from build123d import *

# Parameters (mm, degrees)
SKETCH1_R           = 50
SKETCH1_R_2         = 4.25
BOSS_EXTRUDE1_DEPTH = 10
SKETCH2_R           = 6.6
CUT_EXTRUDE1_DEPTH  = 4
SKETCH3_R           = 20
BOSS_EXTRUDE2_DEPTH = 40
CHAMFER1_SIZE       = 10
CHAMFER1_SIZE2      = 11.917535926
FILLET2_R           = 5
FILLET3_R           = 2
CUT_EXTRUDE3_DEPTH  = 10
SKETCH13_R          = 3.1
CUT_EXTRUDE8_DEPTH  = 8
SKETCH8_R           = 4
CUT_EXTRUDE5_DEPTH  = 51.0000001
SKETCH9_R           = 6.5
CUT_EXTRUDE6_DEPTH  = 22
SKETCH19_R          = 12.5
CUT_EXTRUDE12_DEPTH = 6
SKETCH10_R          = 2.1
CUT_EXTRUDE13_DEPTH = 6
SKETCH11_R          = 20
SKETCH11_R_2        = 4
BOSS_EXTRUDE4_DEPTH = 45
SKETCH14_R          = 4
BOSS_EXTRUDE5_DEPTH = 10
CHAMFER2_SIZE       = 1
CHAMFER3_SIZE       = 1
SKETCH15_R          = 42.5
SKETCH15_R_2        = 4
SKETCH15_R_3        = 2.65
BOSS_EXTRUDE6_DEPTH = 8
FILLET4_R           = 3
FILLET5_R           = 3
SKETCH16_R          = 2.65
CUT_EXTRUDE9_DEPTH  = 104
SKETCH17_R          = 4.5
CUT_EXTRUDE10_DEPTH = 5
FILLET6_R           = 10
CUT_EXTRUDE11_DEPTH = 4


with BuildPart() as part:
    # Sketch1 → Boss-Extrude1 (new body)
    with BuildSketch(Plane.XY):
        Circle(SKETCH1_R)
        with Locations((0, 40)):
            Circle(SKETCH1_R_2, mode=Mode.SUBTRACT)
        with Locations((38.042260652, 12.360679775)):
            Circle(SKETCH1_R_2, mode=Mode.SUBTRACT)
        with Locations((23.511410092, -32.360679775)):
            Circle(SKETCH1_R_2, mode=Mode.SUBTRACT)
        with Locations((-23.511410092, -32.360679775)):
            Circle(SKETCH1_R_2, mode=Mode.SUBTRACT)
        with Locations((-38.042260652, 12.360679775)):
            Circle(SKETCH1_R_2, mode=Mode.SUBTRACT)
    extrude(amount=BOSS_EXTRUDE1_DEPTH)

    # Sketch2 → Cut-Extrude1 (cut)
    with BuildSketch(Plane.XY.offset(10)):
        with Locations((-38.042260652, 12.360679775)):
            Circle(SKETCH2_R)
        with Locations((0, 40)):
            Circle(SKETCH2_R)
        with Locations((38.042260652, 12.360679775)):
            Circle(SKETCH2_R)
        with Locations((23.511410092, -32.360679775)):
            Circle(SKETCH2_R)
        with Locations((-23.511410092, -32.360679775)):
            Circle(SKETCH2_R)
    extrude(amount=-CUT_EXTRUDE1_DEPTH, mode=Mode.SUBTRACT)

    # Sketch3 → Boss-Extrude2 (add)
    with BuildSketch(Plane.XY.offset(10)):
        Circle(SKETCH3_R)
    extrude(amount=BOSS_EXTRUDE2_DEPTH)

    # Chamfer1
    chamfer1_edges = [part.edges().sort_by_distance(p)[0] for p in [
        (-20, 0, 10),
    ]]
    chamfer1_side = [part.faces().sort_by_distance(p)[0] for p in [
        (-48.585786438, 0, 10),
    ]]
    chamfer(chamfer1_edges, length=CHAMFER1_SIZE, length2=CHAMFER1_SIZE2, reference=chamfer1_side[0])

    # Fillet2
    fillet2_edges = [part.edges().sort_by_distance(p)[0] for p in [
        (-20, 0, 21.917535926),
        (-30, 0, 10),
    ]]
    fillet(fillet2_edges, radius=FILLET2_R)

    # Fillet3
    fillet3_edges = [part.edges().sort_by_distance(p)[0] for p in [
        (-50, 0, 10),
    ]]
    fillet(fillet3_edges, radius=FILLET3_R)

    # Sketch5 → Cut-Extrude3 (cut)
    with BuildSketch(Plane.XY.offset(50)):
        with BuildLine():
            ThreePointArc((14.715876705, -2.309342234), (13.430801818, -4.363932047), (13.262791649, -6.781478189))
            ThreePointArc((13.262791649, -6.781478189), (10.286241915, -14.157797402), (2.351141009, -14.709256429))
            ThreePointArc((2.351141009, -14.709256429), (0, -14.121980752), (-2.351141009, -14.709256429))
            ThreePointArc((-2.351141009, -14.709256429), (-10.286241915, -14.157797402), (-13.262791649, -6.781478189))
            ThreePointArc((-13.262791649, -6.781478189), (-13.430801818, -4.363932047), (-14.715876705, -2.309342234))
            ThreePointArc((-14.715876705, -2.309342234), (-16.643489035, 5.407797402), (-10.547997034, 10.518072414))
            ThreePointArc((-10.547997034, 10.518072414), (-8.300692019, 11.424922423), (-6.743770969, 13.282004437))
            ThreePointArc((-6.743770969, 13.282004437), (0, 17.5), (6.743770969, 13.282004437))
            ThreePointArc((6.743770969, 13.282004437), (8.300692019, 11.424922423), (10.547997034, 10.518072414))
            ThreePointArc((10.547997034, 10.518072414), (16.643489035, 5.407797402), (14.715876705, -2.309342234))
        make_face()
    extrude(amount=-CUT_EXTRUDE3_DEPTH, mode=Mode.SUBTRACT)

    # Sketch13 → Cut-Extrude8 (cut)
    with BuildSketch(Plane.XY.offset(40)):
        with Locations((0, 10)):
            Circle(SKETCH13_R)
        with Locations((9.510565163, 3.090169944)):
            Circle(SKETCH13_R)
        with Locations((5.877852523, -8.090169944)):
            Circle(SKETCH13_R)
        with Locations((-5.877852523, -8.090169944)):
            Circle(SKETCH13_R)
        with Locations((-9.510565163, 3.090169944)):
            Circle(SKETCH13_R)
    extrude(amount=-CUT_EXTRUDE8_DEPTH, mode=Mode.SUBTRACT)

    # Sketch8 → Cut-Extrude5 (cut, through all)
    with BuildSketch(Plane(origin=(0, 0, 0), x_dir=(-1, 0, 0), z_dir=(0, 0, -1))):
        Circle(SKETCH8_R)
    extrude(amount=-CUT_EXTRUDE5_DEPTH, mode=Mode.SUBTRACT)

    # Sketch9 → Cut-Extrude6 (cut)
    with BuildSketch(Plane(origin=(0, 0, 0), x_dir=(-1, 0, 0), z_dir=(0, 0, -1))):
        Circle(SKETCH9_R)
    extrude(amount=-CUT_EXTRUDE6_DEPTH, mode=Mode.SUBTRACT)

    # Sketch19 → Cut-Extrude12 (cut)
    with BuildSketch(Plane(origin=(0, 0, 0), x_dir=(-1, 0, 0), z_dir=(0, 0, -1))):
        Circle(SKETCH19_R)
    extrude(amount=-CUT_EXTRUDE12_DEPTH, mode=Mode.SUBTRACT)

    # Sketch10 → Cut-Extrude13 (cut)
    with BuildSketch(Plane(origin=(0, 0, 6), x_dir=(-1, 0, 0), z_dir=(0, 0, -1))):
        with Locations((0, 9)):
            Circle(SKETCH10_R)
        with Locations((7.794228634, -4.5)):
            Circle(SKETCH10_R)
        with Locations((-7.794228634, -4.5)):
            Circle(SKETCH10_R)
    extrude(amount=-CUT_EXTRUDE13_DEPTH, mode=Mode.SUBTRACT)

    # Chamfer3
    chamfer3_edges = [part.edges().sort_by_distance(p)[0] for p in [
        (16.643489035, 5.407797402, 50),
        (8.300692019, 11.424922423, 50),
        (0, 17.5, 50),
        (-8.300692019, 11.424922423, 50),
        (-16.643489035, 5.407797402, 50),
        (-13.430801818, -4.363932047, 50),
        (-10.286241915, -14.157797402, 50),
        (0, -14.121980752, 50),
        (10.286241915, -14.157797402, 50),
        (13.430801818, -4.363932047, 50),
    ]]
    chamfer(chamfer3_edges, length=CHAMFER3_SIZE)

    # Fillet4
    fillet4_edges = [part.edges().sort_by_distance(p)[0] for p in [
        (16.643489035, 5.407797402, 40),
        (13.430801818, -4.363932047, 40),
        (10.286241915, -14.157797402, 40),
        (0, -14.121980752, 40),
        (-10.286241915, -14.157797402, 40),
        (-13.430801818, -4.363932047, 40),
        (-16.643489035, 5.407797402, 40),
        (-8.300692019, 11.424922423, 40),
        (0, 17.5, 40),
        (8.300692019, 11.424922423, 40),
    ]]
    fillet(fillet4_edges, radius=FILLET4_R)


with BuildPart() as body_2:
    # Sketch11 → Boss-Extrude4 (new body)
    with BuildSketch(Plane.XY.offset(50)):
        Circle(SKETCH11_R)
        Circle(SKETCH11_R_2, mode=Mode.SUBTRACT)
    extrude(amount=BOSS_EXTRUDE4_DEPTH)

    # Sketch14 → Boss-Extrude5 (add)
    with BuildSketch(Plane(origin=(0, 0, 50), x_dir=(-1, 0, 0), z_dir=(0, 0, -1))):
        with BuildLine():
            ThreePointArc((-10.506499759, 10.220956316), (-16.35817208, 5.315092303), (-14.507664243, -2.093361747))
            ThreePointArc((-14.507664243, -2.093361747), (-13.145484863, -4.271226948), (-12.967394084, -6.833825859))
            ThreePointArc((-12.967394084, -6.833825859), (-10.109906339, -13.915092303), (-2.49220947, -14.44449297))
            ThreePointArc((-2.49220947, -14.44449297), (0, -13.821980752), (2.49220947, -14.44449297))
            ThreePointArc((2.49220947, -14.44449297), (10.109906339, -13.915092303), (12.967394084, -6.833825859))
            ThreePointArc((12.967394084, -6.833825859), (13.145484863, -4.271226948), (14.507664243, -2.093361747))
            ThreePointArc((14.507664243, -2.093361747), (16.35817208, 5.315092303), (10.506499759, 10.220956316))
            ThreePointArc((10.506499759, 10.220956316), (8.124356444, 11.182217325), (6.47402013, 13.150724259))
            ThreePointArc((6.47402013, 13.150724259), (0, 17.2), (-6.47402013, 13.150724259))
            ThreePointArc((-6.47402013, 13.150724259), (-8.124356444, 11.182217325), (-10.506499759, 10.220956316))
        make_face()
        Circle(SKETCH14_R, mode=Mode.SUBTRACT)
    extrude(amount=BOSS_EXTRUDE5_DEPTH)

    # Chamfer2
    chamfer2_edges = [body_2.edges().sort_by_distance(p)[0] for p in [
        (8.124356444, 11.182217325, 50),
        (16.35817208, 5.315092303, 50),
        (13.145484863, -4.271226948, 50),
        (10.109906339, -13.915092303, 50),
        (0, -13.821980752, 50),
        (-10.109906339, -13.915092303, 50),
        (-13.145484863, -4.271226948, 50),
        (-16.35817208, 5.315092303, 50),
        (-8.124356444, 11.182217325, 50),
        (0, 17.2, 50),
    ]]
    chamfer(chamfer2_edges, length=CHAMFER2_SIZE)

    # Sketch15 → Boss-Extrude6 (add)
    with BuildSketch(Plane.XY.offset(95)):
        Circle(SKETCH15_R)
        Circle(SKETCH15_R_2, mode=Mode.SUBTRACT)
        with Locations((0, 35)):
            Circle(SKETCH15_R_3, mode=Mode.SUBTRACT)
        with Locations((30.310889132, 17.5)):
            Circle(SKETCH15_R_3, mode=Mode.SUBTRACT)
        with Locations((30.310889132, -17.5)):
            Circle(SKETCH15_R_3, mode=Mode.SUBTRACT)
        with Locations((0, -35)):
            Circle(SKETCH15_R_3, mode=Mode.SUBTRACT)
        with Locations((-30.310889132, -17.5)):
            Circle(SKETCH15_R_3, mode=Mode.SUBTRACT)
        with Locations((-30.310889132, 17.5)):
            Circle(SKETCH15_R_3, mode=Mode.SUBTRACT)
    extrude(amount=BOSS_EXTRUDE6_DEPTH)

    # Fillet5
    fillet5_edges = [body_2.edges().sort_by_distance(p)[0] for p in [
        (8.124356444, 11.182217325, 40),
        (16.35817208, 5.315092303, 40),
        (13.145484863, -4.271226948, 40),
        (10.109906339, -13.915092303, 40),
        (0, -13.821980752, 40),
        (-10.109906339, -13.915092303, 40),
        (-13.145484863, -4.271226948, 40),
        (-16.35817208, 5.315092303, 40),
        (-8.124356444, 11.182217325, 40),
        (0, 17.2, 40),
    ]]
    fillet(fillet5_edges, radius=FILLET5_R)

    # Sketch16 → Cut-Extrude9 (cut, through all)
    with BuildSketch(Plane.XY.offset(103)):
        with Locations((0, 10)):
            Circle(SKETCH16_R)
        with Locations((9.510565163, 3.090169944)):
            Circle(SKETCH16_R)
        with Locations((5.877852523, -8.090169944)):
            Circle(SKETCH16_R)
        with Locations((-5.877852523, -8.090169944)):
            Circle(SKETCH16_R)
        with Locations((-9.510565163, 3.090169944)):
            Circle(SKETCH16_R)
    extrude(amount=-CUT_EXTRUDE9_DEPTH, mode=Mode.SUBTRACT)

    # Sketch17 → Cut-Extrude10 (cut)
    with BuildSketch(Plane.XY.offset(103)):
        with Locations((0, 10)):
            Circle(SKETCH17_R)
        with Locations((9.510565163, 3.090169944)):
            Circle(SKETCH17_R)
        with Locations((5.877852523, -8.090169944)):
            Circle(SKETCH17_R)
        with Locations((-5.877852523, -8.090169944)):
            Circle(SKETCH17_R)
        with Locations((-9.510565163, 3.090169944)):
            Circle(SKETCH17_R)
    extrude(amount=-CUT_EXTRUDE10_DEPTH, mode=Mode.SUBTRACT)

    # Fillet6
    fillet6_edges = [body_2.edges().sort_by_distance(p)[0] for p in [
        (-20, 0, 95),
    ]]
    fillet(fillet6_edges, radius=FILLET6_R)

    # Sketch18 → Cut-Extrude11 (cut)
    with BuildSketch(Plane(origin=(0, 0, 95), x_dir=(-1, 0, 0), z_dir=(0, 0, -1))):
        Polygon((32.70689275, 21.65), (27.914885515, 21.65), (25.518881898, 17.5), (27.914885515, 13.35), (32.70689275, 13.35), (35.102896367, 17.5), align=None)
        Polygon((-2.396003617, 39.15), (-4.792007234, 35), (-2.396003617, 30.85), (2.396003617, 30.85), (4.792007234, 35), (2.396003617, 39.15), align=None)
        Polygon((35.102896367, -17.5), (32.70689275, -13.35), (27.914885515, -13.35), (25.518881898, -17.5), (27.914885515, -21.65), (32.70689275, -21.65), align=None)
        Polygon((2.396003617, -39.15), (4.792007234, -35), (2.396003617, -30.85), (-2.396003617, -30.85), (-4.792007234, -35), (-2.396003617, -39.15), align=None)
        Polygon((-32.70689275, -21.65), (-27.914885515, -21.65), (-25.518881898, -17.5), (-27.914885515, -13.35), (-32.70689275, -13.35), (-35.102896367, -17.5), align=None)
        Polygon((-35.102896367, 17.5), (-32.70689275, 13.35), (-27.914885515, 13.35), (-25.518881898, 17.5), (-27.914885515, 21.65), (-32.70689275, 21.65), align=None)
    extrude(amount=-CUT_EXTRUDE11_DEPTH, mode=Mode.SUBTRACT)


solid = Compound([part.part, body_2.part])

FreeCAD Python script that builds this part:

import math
import FreeCAD as App
import Part
import Sketcher
from FreeCAD import Vector
Q = App.Units.Quantity


def edges_at(feature, points):
    """Names of the edges that pass closest to the given points."""
    edges = feature.Shape.Edges
    near = lambda p: min(range(len(edges)), key=lambda i: edges[i].distToShape(Part.Vertex(*p))[0])
    return sorted({f"Edge{near(p) + 1}" for p in points})


def add_polygon(sketch, points):
    """Adds a closed chain of lines whose ends are joined by coincident constraints."""
    first, n = sketch.GeometryCount, len(points)
    for a, b in zip(points, points[1:] + points[:1]):
        sketch.addGeometry(Part.LineSegment(App.Vector(*a, 0), App.Vector(*b, 0)), False)
    for i in range(n):
        sketch.addConstraint(Sketcher.Constraint("Coincident", first + i, 2, first + (i + 1) % n, 1))

doc = App.newDocument("Part")
params = doc.addObject("Spreadsheet::Sheet", "Params")
for row, (alias, value) in enumerate([
    ("sketch1_diameter", "100 mm"),
    ("sketch1_diameter2", "8.5 mm"),
    ("pad1_length", "10 mm"),
    ("sketch2_diameter", "13.2 mm"),
    ("pocket1_length", "4 mm"),
    ("sketch3_diameter", "40 mm"),
    ("pad2_length", "40 mm"),
    ("chamfer_size", "10 mm"),
    ("chamfer_size2", "11.917536 mm"),
    ("fillet_radius", "5 mm"),
    ("fillet2_radius", "2 mm"),
    ("sketch4_radius", "5 mm"),
    ("sketch4_radius2", "7.5 mm"),
    ("pocket2_length", "10 mm"),
    ("sketch5_diameter", "6.2 mm"),
    ("pocket3_length", "8 mm"),
    ("sketch6_diameter", "8 mm"),
    ("sketch7_diameter", "13 mm"),
    ("pocket5_length", "22 mm"),
    ("sketch8_diameter", "25 mm"),
    ("pocket6_length", "6 mm"),
    ("sketch9_diameter", "4.2 mm"),
    ("pocket7_length", "6 mm"),
    ("chamfer2_size", "1 mm"),
    ("fillet3_radius", "3 mm"),
    ("sketch10_diameter", "40 mm"),
    ("sketch10_diameter2", "8 mm"),
    ("pad3_length", "45 mm"),
    ("sketch11_diameter", "8 mm"),
    ("sketch11_radius", "7.2 mm"),
    ("sketch11_radius2", "5.3 mm"),
    ("pad4_length", "10 mm"),
    ("chamfer3_size", "1 mm"),
    ("sketch12_diameter", "85 mm"),
    ("sketch12_diameter2", "8 mm"),
    ("sketch12_diameter3", "5.3 mm"),
    ("pad5_length", "8 mm"),
    ("fillet4_radius", "3 mm"),
    ("sketch13_diameter", "5.3 mm"),
    ("sketch14_diameter", "9 mm"),
    ("pocket9_length", "5 mm"),
    ("fillet5_radius", "10 mm"),
    ("pocket10_length", "4 mm"),
], start=1):
    params.set(f"A{row}", alias)
    params.set(f"B{row}", "=" + value)
    params.setAlias(f"B{row}", alias)

body = doc.addObject("PartDesign::Body", "Body")

# Sketch on XY plane
sketch1 = body.newObject("Sketcher::SketchObject", "Sketch")
sketch1.AttachmentSupport = (doc.getObject("XY_Plane"), [""])
sketch1.MapMode = "FlatFace"
sketch1.addGeometry(Part.Circle(Vector(0, 0, 0), Vector(0, 0, 1), 50), False)
sketch1.addGeometry(Part.Circle(Vector(-23.5, -32.4, 0), Vector(0, 0, 1), 4.2), False)
sketch1.addGeometry(Part.Circle(Vector(23.5, -32.4, 0), Vector(0, 0, 1), 4.2), False)
sketch1.addGeometry(Part.Circle(Vector(-38, 12.4, 0), Vector(0, 0, 1), 4.2), False)
sketch1.addGeometry(Part.Circle(Vector(38, 12.4, 0), Vector(0, 0, 1), 4.2), False)
sketch1.addGeometry(Part.Circle(Vector(0, 40, 0), Vector(0, 0, 1), 4.2), False)
sketch1.addConstraint(Sketcher.Constraint("Coincident", 0, 3, -1, 1))
sketch1.addConstraint(Sketcher.Constraint("Equal", 1, 2))
sketch1.addConstraint(Sketcher.Constraint("Equal", 2, 3))
sketch1.addConstraint(Sketcher.Constraint("Equal", 3, 4))
sketch1.addConstraint(Sketcher.Constraint("Equal", 4, 5))
sketch1.addConstraint(Sketcher.Constraint("Symmetric", 1, 3, 2, 3, -2))
sketch1.addConstraint(Sketcher.Constraint("Symmetric", 3, 3, 4, 3, -2))
sketch1.addConstraint(Sketcher.Constraint("PointOnObject", 5, 3, -2))
sketch1.addConstraint(Sketcher.Constraint("Diameter", 0, 100.0))
sketch1.addConstraint(Sketcher.Constraint("Diameter", 1, 8.5))
sketch1.addConstraint(Sketcher.Constraint("DistanceY", -1, 1, 5, 3, 40.0))
sketch1.addConstraint(Sketcher.Constraint("DistanceX", 1, 3, -1, 1, 23.51141))
sketch1.addConstraint(Sketcher.Constraint("DistanceY", 1, 3, -1, 1, 32.36068))
sketch1.addConstraint(Sketcher.Constraint("DistanceX", 3, 3, -1, 1, 38.042261))
sketch1.addConstraint(Sketcher.Constraint("DistanceY", -1, 1, 3, 3, 12.36068))
sketch1.setExpression("Constraints[8]", "Params.sketch1_diameter")
sketch1.setExpression("Constraints[9]", "Params.sketch1_diameter2")
pad1 = body.newObject("PartDesign::Pad", "Pad")
pad1.Profile = sketch1
pad1.setExpression("Length", "Params.pad1_length")

# Sketch on XY plane
sketch2 = body.newObject("Sketcher::SketchObject", "Sketch001")
sketch2.AttachmentSupport = (doc.getObject("XY_Plane"), [""])
sketch2.MapMode = "FlatFace"
sketch2.AttachmentOffset = App.Placement(Vector(0, 0, 10), App.Rotation())
sketch2.addGeometry(Part.Circle(Vector(-38, 12, 0), Vector(0, 0, 1), 7), False)
sketch2.addGeometry(Part.Circle(Vector(0, 40, 0), Vector(0, 0, 1), 7), False)
sketch2.addGeometry(Part.Circle(Vector(38, 12, 0), Vector(0, 0, 1), 7), False)
sketch2.addGeometry(Part.Circle(Vector(24, -32, 0), Vector(0, 0, 1), 7), False)
sketch2.addGeometry(Part.Circle(Vector(-24, -32, 0), Vector(0, 0, 1), 7), False)
sketch2.addConstraint(Sketcher.Constraint("Equal", 0, 1))
sketch2.addConstraint(Sketcher.Constraint("Equal", 1, 2))
sketch2.addConstraint(Sketcher.Constraint("Equal", 2, 3))
sketch2.addConstraint(Sketcher.Constraint("Equal", 3, 4))
sketch2.addConstraint(Sketcher.Constraint("Symmetric", 0, 3, 2, 3, -2))
sketch2.addConstraint(Sketcher.Constraint("Symmetric", 3, 3, 4, 3, -2))
sketch2.addConstraint(Sketcher.Constraint("PointOnObject", 1, 3, -2))
sketch2.addConstraint(Sketcher.Constraint("Diameter", 0, 13.2))
sketch2.addConstraint(Sketcher.Constraint("DistanceY", -1, 1, 1, 3, 40.0))
sketch2.addConstraint(Sketcher.Constraint("DistanceX", 0, 3, -1, 1, 38.042261))
sketch2.addConstraint(Sketcher.Constraint("DistanceY", -1, 1, 0, 3, 12.36068))
sketch2.addConstraint(Sketcher.Constraint("DistanceX", -1, 1, 3, 3, 23.51141))
sketch2.addConstraint(Sketcher.Constraint("DistanceY", 3, 3, -1, 1, 32.36068))
sketch2.setExpression("Constraints[7]", "Params.sketch2_diameter")
pocket1 = body.newObject("PartDesign::Pocket", "Pocket")
pocket1.Profile = sketch2
pocket1.setExpression("Length", "Params.pocket1_length")

# Sketch on XY plane
sketch3 = body.newObject("Sketcher::SketchObject", "Sketch002")
sketch3.AttachmentSupport = (doc.getObject("XY_Plane"), [""])
sketch3.MapMode = "FlatFace"
sketch3.AttachmentOffset = App.Placement(Vector(0, 0, 10), App.Rotation())
sketch3.addGeometry(Part.Circle(Vector(0, 0, 0), Vector(0, 0, 1), 20), False)
sketch3.addConstraint(Sketcher.Constraint("Coincident", 0, 3, -1, 1))
sketch3.addConstraint(Sketcher.Constraint("Diameter", 0, 40.0))
sketch3.setExpression("Constraints[1]", "Params.sketch3_diameter")
pad2 = body.newObject("PartDesign::Pad", "Pad001")
pad2.Profile = sketch3
pad2.setExpression("Length", "Params.pad2_length")
doc.recompute()

chamfer = body.newObject("PartDesign::Chamfer", "Chamfer")
chamfer.Base = (pad2, edges_at(pad2, [(-20, 0, 10)]))
chamfer.ChamferType = "Two distances"
chamfer.setExpression("Size", "Params.chamfer_size")
chamfer.setExpression("Size2", "Params.chamfer_size2")
doc.recompute()

fillet = body.newObject("PartDesign::Fillet", "Fillet")
fillet.Base = (chamfer, edges_at(chamfer, [(-20, 0, 21.918), (-30, 0, 10)]))
fillet.setExpression("Radius", "Params.fillet_radius")
doc.recompute()

fillet2 = body.newObject("PartDesign::Fillet", "Fillet001")
fillet2.Base = (fillet, edges_at(fillet, [(-50, 0, 10)]))
fillet2.setExpression("Radius", "Params.fillet2_radius")

# Sketch on XY plane
sketch4 = body.newObject("Sketcher::SketchObject", "Sketch003")
sketch4.AttachmentSupport = (doc.getObject("XY_Plane"), [""])
sketch4.MapMode = "FlatFace"
sketch4.AttachmentOffset = App.Placement(Vector(0, 0, 50), App.Rotation())
sketch4.addGeometry(Part.ArcOfCircle(Part.Circle(Vector(18.2, -5.9, 0), Vector(0, 0, 1), 5), math.radians(134), math.radians(190)), False)
sketch4.addGeometry(Part.ArcOfCircle(Part.Circle(Vector(9.5, 3.1, 0), Vector(0, 0, 1), 7.5), math.radians(-46), math.radians(82)), False)
sketch4.addGeometry(Part.ArcOfCircle(Part.Circle(Vector(11.2, 15.5, 0), Vector(0, 0, 1), 5), math.radians(-154), math.radians(-98)), False)
sketch4.addGeometry(Part.ArcOfCircle(Part.Circle(Vector(0, 10, 0), Vector(0, 0, 1), 7.5), math.radians(26), math.radians(154)), False)
sketch4.addGeometry(Part.ArcOfCircle(Part.Circle(Vector(-11.2, 15.5, 0), Vector(0, 0, 1), 5), math.radians(-82), math.radians(-26)), False)
sketch4.addGeometry(Part.ArcOfCircle(Part.Circle(Vector(-9.5, 3.1, 0), Vector(0, 0, 1), 7.5), math.radians(98), math.radians(226)), False)
sketch4.addGeometry(Part.ArcOfCircle(Part.Circle(Vector(-18.2, -5.9, 0), Vector(0, 0, 1), 5), math.radians(-10), math.radians(46)), False)
sketch4.addGeometry(Part.ArcOfCircle(Part.Circle(Vector(-5.9, -8.1, 0), Vector(0, 0, 1), 7.5), math.radians(170), math.radians(298)), False)
sketch4.addGeometry(Part.ArcOfCircle(Part.Circle(Vector(0, -19.1, 0), Vector(0, 0, 1), 5), math.radians(62), math.radians(118)), False)
sketch4.addGeometry(Part.ArcOfCircle(Part.Circle(Vector(5.9, -8.1, 0), Vector(0, 0, 1), 7.5), math.radians(-118), math.radians(10)), False)
sketch4.addConstraint(Sketcher.Constraint("Tangent", 0, 1, 1, 1))
sketch4.addConstraint(Sketcher.Constraint("Tangent", 1, 2, 2, 2))
sketch4.addConstraint(Sketcher.Constraint("Tangent", 2, 1, 3, 1))
sketch4.addConstraint(Sketcher.Constraint("Tangent", 3, 2, 4, 2))
sketch4.addConstraint(Sketcher.Constraint("Tangent", 4, 1, 5, 1))
sketch4.addConstraint(Sketcher.Constraint("Tangent", 5, 2, 6, 2))
sketch4.addConstraint(Sketcher.Constraint("Tangent", 6, 1, 7, 1))
sketch4.addConstraint(Sketcher.Constraint("Tangent", 7, 2, 8, 2))
sketch4.addConstraint(Sketcher.Constraint("Tangent", 8, 1, 9, 1))
sketch4.addConstraint(Sketcher.Constraint("Tangent", 9, 2, 0, 2))
sketch4.addConstraint(Sketcher.Constraint("Equal", 0, 2))
sketch4.addConstraint(Sketcher.Constraint("Equal", 1, 3))
sketch4.addConstraint(Sketcher.Constraint("Equal", 2, 4))
sketch4.addConstraint(Sketcher.Constraint("Equal", 3, 5))
sketch4.addConstraint(Sketcher.Constraint("Equal", 4, 6))
sketch4.addConstraint(Sketcher.Constraint("Equal", 5, 7))
sketch4.addConstraint(Sketcher.Constraint("Equal", 6, 8))
sketch4.addConstraint(Sketcher.Constraint("Equal", 7, 9))
sketch4.addConstraint(Sketcher.Constraint("Symmetric", 2, 3, 4, 3, -2))
sketch4.addConstraint(Sketcher.Constraint("Symmetric", 0, 3, 6, 3, -2))
sketch4.addConstraint(Sketcher.Constraint("PointOnObject", 8, 3, -2))
sketch4.addConstraint(Sketcher.Constraint("Radius", 0, 5.0))
sketch4.addConstraint(Sketcher.Constraint("Radius", 1, 7.5))
sketch4.addConstraint(Sketcher.Constraint("DistanceY", -1, 1, 3, 3, 10.0))
sketch4.addConstraint(Sketcher.Constraint("DistanceY", -1, 1, 1, 3, 3.09017))
sketch4.addConstraint(Sketcher.Constraint("DistanceX", -1, 1, 2, 3, 11.239618))
sketch4.addConstraint(Sketcher.Constraint("DistanceY", 7, 3, -1, 1, 8.09017))
sketch4.addConstraint(Sketcher.Constraint("DistanceY", 8, 3, -1, 1, 19.121981))
sketch4.setExpression("Constraints[21]", "Params.sketch4_radius")
sketch4.setExpression("Constraints[22]", "Params.sketch4_radius2")
pocket2 = body.newObject("PartDesign::Pocket", "Pocket001")
pocket2.Profile = sketch4
pocket2.setExpression("Length", "Params.pocket2_length")

# Sketch on XY plane
sketch5 = body.newObject("Sketcher::SketchObject", "Sketch004")
sketch5.AttachmentSupport = (doc.getObject("XY_Plane"), [""])
sketch5.MapMode = "FlatFace"
sketch5.AttachmentOffset = App.Placement(Vector(0, 0, 40), App.Rotation())
sketch5.addGeometry(Part.Circle(Vector(0, 10, 0), Vector(0, 0, 1), 3.1), False)
sketch5.addGeometry(Part.Circle(Vector(9.5, 3.1, 0), Vector(0, 0, 1), 3.1), False)
sketch5.addGeometry(Part.Circle(Vector(5.9, -8.1, 0), Vector(0, 0, 1), 3.1), False)
sketch5.addGeometry(Part.Circle(Vector(-5.9, -8.1, 0), Vector(0, 0, 1), 3.1), False)
sketch5.addGeometry(Part.Circle(Vector(-9.5, 3.1, 0), Vector(0, 0, 1), 3.1), False)
sketch5.addConstraint(Sketcher.Constraint("Equal", 0, 1))
sketch5.addConstraint(Sketcher.Constraint("Equal", 1, 2))
sketch5.addConstraint(Sketcher.Constraint("Equal", 2, 3))
sketch5.addConstraint(Sketcher.Constraint("Equal", 3, 4))
sketch5.addConstraint(Sketcher.Constraint("Symmetric", 2, 3, 3, 3, -2))
sketch5.addConstraint(Sketcher.Constraint("Symmetric", 1, 3, 4, 3, -2))
sketch5.addConstraint(Sketcher.Constraint("PointOnObject", 0, 3, -2))
sketch5.addConstraint(Sketcher.Constraint("Diameter", 0, 6.2))
sketch5.addConstraint(Sketcher.Constraint("DistanceY", -1, 1, 0, 3, 10.0))
sketch5.addConstraint(Sketcher.Constraint("DistanceY", -1, 1, 1, 3, 3.09017))
sketch5.addConstraint(Sketcher.Constraint("DistanceY", 2, 3, -1, 1, 8.09017))
sketch5.addConstraint(Sketcher.Constraint("DistanceX", 4, 3, 1, 3, 19.02113))
sketch5.addConstraint(Sketcher.Constraint("DistanceX", -1, 1, 2, 3, 5.877853))
sketch5.setExpression("Constraints[7]", "Params.sketch5_diameter")
pocket3 = body.newObject("PartDesign::Pocket", "Pocket002")
pocket3.Profile = sketch5
pocket3.setExpression("Length", "Params.pocket3_length")

# Sketch on XY plane
sketch6 = body.newObject("Sketcher::SketchObject", "Sketch005")
sketch6.AttachmentSupport = (doc.getObject("XY_Plane"), [""])
sketch6.MapMode = "FlatFace"
sketch6.addGeometry(Part.Circle(Vector(0, 0, 0), Vector(0, 0, 1), 4), False)
sketch6.addConstraint(Sketcher.Constraint("Coincident", 0, 3, -1, 1))
sketch6.addConstraint(Sketcher.Constraint("Diameter", 0, 8.0))
sketch6.setExpression("Constraints[1]", "Params.sketch6_diameter")
pocket4 = body.newObject("PartDesign::Pocket", "Pocket003")
pocket4.Profile = sketch6
pocket4.Type = "ThroughAll"
pocket4.Reversed = True

# Sketch on XY plane
sketch7 = body.newObject("Sketcher::SketchObject", "Sketch006")
sketch7.AttachmentSupport = (doc.getObject("XY_Plane"), [""])
sketch7.MapMode = "FlatFace"
sketch7.addGeometry(Part.Circle(Vector(0, 0, 0), Vector(0, 0, 1), 6), False)
sketch7.addConstraint(Sketcher.Constraint("Coincident", 0, 3, -1, 1))
sketch7.addConstraint(Sketcher.Constraint("Diameter", 0, 13.0))
sketch7.setExpression("Constraints[1]", "Params.sketch7_diameter")
pocket5 = body.newObject("PartDesign::Pocket", "Pocket004")
pocket5.Profile = sketch7
pocket5.setExpression("Length", "Params.pocket5_length")
pocket5.Reversed = True

# Sketch on XY plane
sketch8 = body.newObject("Sketcher::SketchObject", "Sketch007")
sketch8.AttachmentSupport = (doc.getObject("XY_Plane"), [""])
sketch8.MapMode = "FlatFace"
sketch8.addGeometry(Part.Circle(Vector(0, 0, 0), Vector(0, 0, 1), 12), False)
sketch8.addConstraint(Sketcher.Constraint("Coincident", 0, 3, -1, 1))
sketch8.addConstraint(Sketcher.Constraint("Diameter", 0, 25.0))
sketch8.setExpression("Constraints[1]", "Params.sketch8_diameter")
pocket6 = body.newObject("PartDesign::Pocket", "Pocket005")
pocket6.Profile = sketch8
pocket6.setExpression("Length", "Params.pocket6_length")
pocket6.Reversed = True

# Sketch on XY plane
sketch9 = body.newObject("Sketcher::SketchObject", "Sketch008")
sketch9.AttachmentSupport = (doc.getObject("XY_Plane"), [""])
sketch9.MapMode = "FlatFace"
sketch9.AttachmentOffset = App.Placement(Vector(0, 0, 6), App.Rotation())
sketch9.addGeometry(Part.Circle(Vector(0, 9, 0), Vector(0, 0, 1), 2.1), False)
sketch9.addGeometry(Part.Circle(Vector(-7.8, -4.5, 0), Vector(0, 0, 1), 2.1), False)
sketch9.addGeometry(Part.Circle(Vector(7.8, -4.5, 0), Vector(0, 0, 1), 2.1), False)
sketch9.addConstraint(Sketcher.Constraint("Equal", 0, 1))
sketch9.addConstraint(Sketcher.Constraint("Equal", 1, 2))
sketch9.addConstraint(Sketcher.Constraint("Symmetric", 1, 3, 2, 3, -2))
sketch9.addConstraint(Sketcher.Constraint("PointOnObject", 0, 3, -2))
sketch9.addConstraint(Sketcher.Constraint("Diameter", 0, 4.2))
sketch9.addConstraint(Sketcher.Constraint("DistanceY", -1, 1, 0, 3, 9.0))
sketch9.addConstraint(Sketcher.Constraint("DistanceY", 1, 3, -1, 1, 4.5))
sketch9.addConstraint(Sketcher.Constraint("DistanceX", 1, 3, -1, 1, 7.794229))
sketch9.setExpression("Constraints[4]", "Params.sketch9_diameter")
pocket7 = body.newObject("PartDesign::Pocket", "Pocket006")
pocket7.Profile = sketch9
pocket7.setExpression("Length", "Params.pocket7_length")
pocket7.Reversed = True
doc.recompute()

chamfer2 = body.newObject("PartDesign::Chamfer", "Chamfer001")
chamfer2.Base = (pocket7, edges_at(pocket7, [
    (16.643, 5.408, 50),
    (8.301, 11.425, 50),
    (0, 17.5, 50),
    (-8.301, 11.425, 50),
    (-16.643, 5.408, 50),
    (-13.431, -4.364, 50),
    (-10.286, -14.158, 50),
    (0, -14.122, 50),
    (10.286, -14.158, 50),
    (13.431, -4.364, 50),
]))
chamfer2.setExpression("Size", "Params.chamfer2_size")
doc.recompute()

fillet3 = body.newObject("PartDesign::Fillet", "Fillet002")
fillet3.Base = (chamfer2, edges_at(chamfer2, [
    (16.643, 5.408, 40),
    (13.431, -4.364, 40),
    (10.286, -14.158, 40),
    (0, -14.122, 40),
    (-10.286, -14.158, 40),
    (-13.431, -4.364, 40),
    (-16.643, 5.408, 40),
    (-8.301, 11.425, 40),
    (0, 17.5, 40),
    (8.301, 11.425, 40),
]))
fillet3.setExpression("Radius", "Params.fillet3_radius")
body2 = doc.addObject("PartDesign::Body", "Body001")

# Sketch on XY plane
sketch10 = body2.newObject("Sketcher::SketchObject", "Sketch009")
sketch10.AttachmentSupport = (doc.getObject("XY_Plane001"), [""])
sketch10.MapMode = "FlatFace"
sketch10.AttachmentOffset = App.Placement(Vector(0, 0, 50), App.Rotation())
sketch10.addGeometry(Part.Circle(Vector(0, 0, 0), Vector(0, 0, 1), 20), False)
sketch10.addGeometry(Part.Circle(Vector(0, 0, 0), Vector(0, 0, 1), 4), False)
sketch10.addConstraint(Sketcher.Constraint("Coincident", 0, 3, -1, 1))
sketch10.addConstraint(Sketcher.Constraint("Coincident", 1, 3, -1, 1))
sketch10.addConstraint(Sketcher.Constraint("Diameter", 0, 40.0))
sketch10.addConstraint(Sketcher.Constraint("Diameter", 1, 8.0))
sketch10.setExpression("Constraints[2]", "Params.sketch10_diameter")
sketch10.setExpression("Constraints[3]", "Params.sketch10_diameter2")
pad3 = body2.newObject("PartDesign::Pad", "Pad002")
pad3.Profile = sketch10
pad3.setExpression("Length", "Params.pad3_length")

# Sketch on XY plane
sketch11 = body2.newObject("Sketcher::SketchObject", "Sketch010")
sketch11.AttachmentSupport = (doc.getObject("XY_Plane001"), [""])
sketch11.MapMode = "FlatFace"
sketch11.AttachmentOffset = App.Placement(Vector(0, 0, 50), App.Rotation())
sketch11.addGeometry(Part.ArcOfCircle(Part.Circle(Vector(9.5, 3.1, 0), Vector(0, 0, 1), 7.2), math.radians(-46), math.radians(82)), False)
sketch11.addGeometry(Part.ArcOfCircle(Part.Circle(Vector(18.2, -5.9, 0), Vector(0, 0, 1), 5.3), math.radians(134), math.radians(190)), False)
sketch11.addGeometry(Part.ArcOfCircle(Part.Circle(Vector(5.9, -8.1, 0), Vector(0, 0, 1), 7.2), math.radians(-118), math.radians(10)), False)
sketch11.addGeometry(Part.ArcOfCircle(Part.Circle(Vector(0, -19.1, 0), Vector(0, 0, 1), 5.3), math.radians(62), math.radians(118)), False)
sketch11.addGeometry(Part.ArcOfCircle(Part.Circle(Vector(-5.9, -8.1, 0), Vector(0, 0, 1), 7.2), math.radians(170), math.radians(298)), False)
sketch11.addGeometry(Part.ArcOfCircle(Part.Circle(Vector(-18.2, -5.9, 0), Vector(0, 0, 1), 5.3), math.radians(-10), math.radians(46)), False)
sketch11.addGeometry(Part.ArcOfCircle(Part.Circle(Vector(-9.5, 3.1, 0), Vector(0, 0, 1), 7.2), math.radians(98), math.radians(226)), False)
sketch11.addGeometry(Part.ArcOfCircle(Part.Circle(Vector(-11.2, 15.5, 0), Vector(0, 0, 1), 5.3), math.radians(-82), math.radians(-26)), False)
sketch11.addGeometry(Part.ArcOfCircle(Part.Circle(Vector(0, 10, 0), Vector(0, 0, 1), 7.2), math.radians(26), math.radians(154)), False)
sketch11.addGeometry(Part.ArcOfCircle(Part.Circle(Vector(11.2, 15.5, 0), Vector(0, 0, 1), 5.3), math.radians(-154), math.radians(-98)), False)
sketch11.addGeometry(Part.Circle(Vector(0, 0, 0), Vector(0, 0, 1), 4), False)
sketch11.addConstraint(Sketcher.Constraint("Tangent", 0, 1, 1, 1))
sketch11.addConstraint(Sketcher.Constraint("Tangent", 1, 2, 2, 2))
sketch11.addConstraint(Sketcher.Constraint("Tangent", 2, 1, 3, 1))
sketch11.addConstraint(Sketcher.Constraint("Tangent", 3, 2, 4, 2))
sketch11.addConstraint(Sketcher.Constraint("Tangent", 4, 1, 5, 1))
sketch11.addConstraint(Sketcher.Constraint("Tangent", 5, 2, 6, 2))
sketch11.addConstraint(Sketcher.Constraint("Tangent", 6, 1, 7, 1))
sketch11.addConstraint(Sketcher.Constraint("Tangent", 7, 2, 8, 2))
sketch11.addConstraint(Sketcher.Constraint("Tangent", 8, 1, 9, 1))
sketch11.addConstraint(Sketcher.Constraint("Tangent", 9, 2, 0, 2))
sketch11.addConstraint(Sketcher.Constraint("Coincident", 10, 3, -1, 1))
sketch11.addConstraint(Sketcher.Constraint("Equal", 0, 2))
sketch11.addConstraint(Sketcher.Constraint("Equal", 1, 3))
sketch11.addConstraint(Sketcher.Constraint("Equal", 2, 4))
sketch11.addConstraint(Sketcher.Constraint("Equal", 3, 5))
sketch11.addConstraint(Sketcher.Constraint("Equal", 4, 6))
sketch11.addConstraint(Sketcher.Constraint("Equal", 5, 7))
sketch11.addConstraint(Sketcher.Constraint("Equal", 6, 8))
sketch11.addConstraint(Sketcher.Constraint("Equal", 7, 9))
sketch11.addConstraint(Sketcher.Constraint("Symmetric", 2, 3, 4, 3, -2))
sketch11.addConstraint(Sketcher.Constraint("Symmetric", 0, 3, 6, 3, -2))
sketch11.addConstraint(Sketcher.Constraint("PointOnObject", 8, 3, -2))
sketch11.addConstraint(Sketcher.Constraint("Diameter", 10, 8.0))
sketch11.addConstraint(Sketcher.Constraint("Radius", 0, 7.2))
sketch11.addConstraint(Sketcher.Constraint("Radius", 1, 5.3))
sketch11.addConstraint(Sketcher.Constraint("DistanceY", -1, 1, 8, 3, 10.0))
sketch11.addConstraint(Sketcher.Constraint("DistanceX", 6, 1, -1, 1, 10.5065))
sketch11.addConstraint(Sketcher.Constraint("DistanceX", 0, 3, 0, 1, 4.997099))
sketch11.addConstraint(Sketcher.Constraint("DistanceX", 7, 3, 7, 2, 4.765598))
sketch11.addConstraint(Sketcher.Constraint("DistanceY", 2, 3, -1, 1, 8.09017))
sketch11.setExpression("Constraints[22]", "Params.sketch11_diameter")
sketch11.setExpression("Constraints[23]", "Params.sketch11_radius")
sketch11.setExpression("Constraints[24]", "Params.sketch11_radius2")
pad4 = body2.newObject("PartDesign::Pad", "Pad003")
pad4.Profile = sketch11
pad4.setExpression("Length", "Params.pad4_length")
pad4.Reversed = True
doc.recompute()

chamfer3 = body2.newObject("PartDesign::Chamfer", "Chamfer002")
chamfer3.Base = (pad4, edges_at(pad4, [
    (8.124, 11.182, 50),
    (16.358, 5.315, 50),
    (13.145, -4.271, 50),
    (10.11, -13.915, 50),
    (0, -13.822, 50),
    (-10.11, -13.915, 50),
    (-13.145, -4.271, 50),
    (-16.358, 5.315, 50),
    (-8.124, 11.182, 50),
    (0, 17.2, 50),
]))
chamfer3.setExpression("Size", "Params.chamfer3_size")

# Sketch on XY plane
sketch12 = body2.newObject("Sketcher::SketchObject", "Sketch011")
sketch12.AttachmentSupport = (doc.getObject("XY_Plane001"), [""])
sketch12.MapMode = "FlatFace"
sketch12.AttachmentOffset = App.Placement(Vector(0, 0, 95), App.Rotation())
sketch12.addGeometry(Part.Circle(Vector(0, 0, 0), Vector(0, 0, 1), 42.5), False)
sketch12.addGeometry(Part.Circle(Vector(0, -35, 0), Vector(0, 0, 1), 2.6), False)
sketch12.addGeometry(Part.Circle(Vector(-30.3, -17.5, 0), Vector(0, 0, 1), 2.6), False)
sketch12.addGeometry(Part.Circle(Vector(30.3, -17.5, 0), Vector(0, 0, 1), 2.6), False)
sketch12.addGeometry(Part.Circle(Vector(-30.3, 17.5, 0), Vector(0, 0, 1), 2.6), False)
sketch12.addGeometry(Part.Circle(Vector(0, 0, 0), Vector(0, 0, 1), 4), False)
sketch12.addGeometry(Part.Circle(Vector(0, 35, 0), Vector(0, 0, 1), 2.6), False)
sketch12.addGeometry(Part.Circle(Vector(30.3, 17.5, 0), Vector(0, 0, 1), 2.6), False)
sketch12.addConstraint(Sketcher.Constraint("Coincident", 0, 3, -1, 1))
sketch12.addConstraint(Sketcher.Constraint("Coincident", 5, 3, -1, 1))
sketch12.addConstraint(Sketcher.Constraint("Equal", 1, 2))
sketch12.addConstraint(Sketcher.Constraint("Equal", 2, 3))
sketch12.addConstraint(Sketcher.Constraint("Equal", 3, 4))
sketch12.addConstraint(Sketcher.Constraint("Equal", 4, 6))
sketch12.addConstraint(Sketcher.Constraint("Equal", 6, 7))
sketch12.addConstraint(Sketcher.Constraint("Symmetric", 3, 3, 4, 3, -1, 1))
sketch12.addConstraint(Sketcher.Constraint("Symmetric", 1, 3, 6, 3, -1, 1))
sketch12.addConstraint(Sketcher.Constraint("Symmetric", 2, 3, 7, 3, -1, 1))
sketch12.addConstraint(Sketcher.Constraint("Symmetric", 2, 3, 3, 3, -2))
sketch12.addConstraint(Sketcher.Constraint("PointOnObject", 1, 3, -2))
sketch12.addConstraint(Sketcher.Constraint("Diameter", 0, 85.0))
sketch12.addConstraint(Sketcher.Constraint("Diameter", 5, 8.0))
sketch12.addConstraint(Sketcher.Constraint("Diameter", 1, 5.3))
sketch12.addConstraint(Sketcher.Constraint("DistanceY", 1, 3, -1, 1, 35.0))
sketch12.addConstraint(Sketcher.Constraint("DistanceY", 2, 3, 4, 3, 35.0))
sketch12.addConstraint(Sketcher.Constraint("DistanceX", 2, 3, -1, 1, 30.310889))
sketch12.setExpression("Constraints[12]", "Params.sketch12_diameter")
sketch12.setExpression("Constraints[13]", "Params.sketch12_diameter2")
sketch12.setExpression("Constraints[14]", "Params.sketch12_diameter3")
pad5 = body2.newObject("PartDesign::Pad", "Pad004")
pad5.Profile = sketch12
pad5.setExpression("Length", "Params.pad5_length")
doc.recompute()

fillet4 = body2.newObject("PartDesign::Fillet", "Fillet003")
fillet4.Base = (pad5, edges_at(pad5, [
    (8.124, 11.182, 40),
    (16.358, 5.315, 40),
    (13.145, -4.271, 40),
    (10.11, -13.915, 40),
    (0, -13.822, 40),
    (-10.11, -13.915, 40),
    (-13.145, -4.271, 40),
    (-16.358, 5.315, 40),
    (-8.124, 11.182, 40),
    (0, 17.2, 40),
]))
fillet4.setExpression("Radius", "Params.fillet4_radius")

# Sketch on XY plane
sketch13 = body2.newObject("Sketcher::SketchObject", "Sketch012")
sketch13.AttachmentSupport = (doc.getObject("XY_Plane001"), [""])
sketch13.MapMode = "FlatFace"
sketch13.AttachmentOffset = App.Placement(Vector(0, 0, 103), App.Rotation())
sketch13.addGeometry(Part.Circle(Vector(0, 10, 0), Vector(0, 0, 1), 2.6), False)
sketch13.addGeometry(Part.Circle(Vector(9.5, 3.1, 0), Vector(0, 0, 1), 2.6), False)
sketch13.addGeometry(Part.Circle(Vector(5.9, -8.1, 0), Vector(0, 0, 1), 2.6), False)
sketch13.addGeometry(Part.Circle(Vector(-5.9, -8.1, 0), Vector(0, 0, 1), 2.6), False)
sketch13.addGeometry(Part.Circle(Vector(-9.5, 3.1, 0), Vector(0, 0, 1), 2.6), False)
sketch13.addConstraint(Sketcher.Constraint("Equal", 0, 1))
sketch13.addConstraint(Sketcher.Constraint("Equal", 1, 2))
sketch13.addConstraint(Sketcher.Constraint("Equal", 2, 3))
sketch13.addConstraint(Sketcher.Constraint("Equal", 3, 4))
sketch13.addConstraint(Sketcher.Constraint("Symmetric", 2, 3, 3, 3, -2))
sketch13.addConstraint(Sketcher.Constraint("Symmetric", 1, 3, 4, 3, -2))
sketch13.addConstraint(Sketcher.Constraint("PointOnObject", 0, 3, -2))
sketch13.addConstraint(Sketcher.Constraint("Diameter", 0, 5.3))
sketch13.addConstraint(Sketcher.Constraint("DistanceY", -1, 1, 0, 3, 10.0))
sketch13.addConstraint(Sketcher.Constraint("DistanceY", -1, 1, 1, 3, 3.09017))
sketch13.addConstraint(Sketcher.Constraint("DistanceY", 2, 3, -1, 1, 8.09017))
sketch13.addConstraint(Sketcher.Constraint("DistanceX", 4, 3, 1, 3, 19.02113))
sketch13.addConstraint(Sketcher.Constraint("DistanceX", -1, 1, 2, 3, 5.877853))
sketch13.setExpression("Constraints[7]", "Params.sketch13_diameter")
pocket8 = body2.newObject("PartDesign::Pocket", "Pocket007")
pocket8.Profile = sketch13
pocket8.Type = "ThroughAll"

# Sketch on XY plane
sketch14 = body2.newObject("Sketcher::SketchObject", "Sketch013")
sketch14.AttachmentSupport = (doc.getObject("XY_Plane001"), [""])
sketch14.MapMode = "FlatFace"
sketch14.AttachmentOffset = App.Placement(Vector(0, 0, 103), App.Rotation())
sketch14.addGeometry(Part.Circle(Vector(0, 10, 0), Vector(0, 0, 1), 4.5), False)
sketch14.addGeometry(Part.Circle(Vector(9.5, 3.1, 0), Vector(0, 0, 1), 4.5), False)
sketch14.addGeometry(Part.Circle(Vector(5.9, -8.1, 0), Vector(0, 0, 1), 4.5), False)
sketch14.addGeometry(Part.Circle(Vector(-5.9, -8.1, 0), Vector(0, 0, 1), 4.5), False)
sketch14.addGeometry(Part.Circle(Vector(-9.5, 3.1, 0), Vector(0, 0, 1), 4.5), False)
sketch14.addConstraint(Sketcher.Constraint("Equal", 0, 1))
sketch14.addConstraint(Sketcher.Constraint("Equal", 1, 2))
sketch14.addConstraint(Sketcher.Constraint("Equal", 2, 3))
sketch14.addConstraint(Sketcher.Constraint("Equal", 3, 4))
sketch14.addConstraint(Sketcher.Constraint("Symmetric", 2, 3, 3, 3, -2))
sketch14.addConstraint(Sketcher.Constraint("Symmetric", 1, 3, 4, 3, -2))
sketch14.addConstraint(Sketcher.Constraint("PointOnObject", 0, 3, -2))
sketch14.addConstraint(Sketcher.Constraint("Diameter", 0, 9.0))
sketch14.addConstraint(Sketcher.Constraint("DistanceY", -1, 1, 0, 3, 10.0))
sketch14.addConstraint(Sketcher.Constraint("DistanceY", -1, 1, 1, 3, 3.09017))
sketch14.addConstraint(Sketcher.Constraint("DistanceY", 2, 3, -1, 1, 8.09017))
sketch14.addConstraint(Sketcher.Constraint("DistanceX", 4, 3, 1, 3, 19.02113))
sketch14.addConstraint(Sketcher.Constraint("DistanceX", -1, 1, 2, 3, 5.877853))
sketch14.setExpression("Constraints[7]", "Params.sketch14_diameter")
pocket9 = body2.newObject("PartDesign::Pocket", "Pocket008")
pocket9.Profile = sketch14
pocket9.setExpression("Length", "Params.pocket9_length")
doc.recompute()

fillet5 = body2.newObject("PartDesign::Fillet", "Fillet004")
fillet5.Base = (pocket9, edges_at(pocket9, [(-20, 0, 95)]))
fillet5.setExpression("Radius", "Params.fillet5_radius")

# Sketch on XY plane
sketch15 = body2.newObject("Sketcher::SketchObject", "Sketch014")
sketch15.AttachmentSupport = (doc.getObject("XY_Plane001"), [""])
sketch15.MapMode = "FlatFace"
sketch15.AttachmentOffset = App.Placement(Vector(0, 0, 95), App.Rotation())
add_polygon(sketch15, [(-32.7, 21.6), (-27.9, 21.6), (-25.5, 17.5), (-27.9, 13.3), (-32.7, 13.3), (-35.1, 17.5)])  # lines 0-5
add_polygon(sketch15, [(2.4, 39.1), (4.8, 35), (2.4, 30.9), (-2.4, 30.9), (-4.8, 35), (-2.4, 39.1)])  # lines 6-11
add_polygon(sketch15, [(-35.1, -17.5), (-32.7, -13.3), (-27.9, -13.3), (-25.5, -17.5), (-27.9, -21.6), (-32.7, -21.6)])  # lines 12-17
add_polygon(sketch15, [(-2.4, -39.1), (-4.8, -35), (-2.4, -30.9), (2.4, -30.9), (4.8, -35), (2.4, -39.1)])  # lines 18-23
add_polygon(sketch15, [(32.7, -21.6), (27.9, -21.6), (25.5, -17.5), (27.9, -13.3), (32.7, -13.3), (35.1, -17.5)])  # lines 24-29
add_polygon(sketch15, [(35.1, 17.5), (32.7, 13.3), (27.9, 13.3), (25.5, 17.5), (27.9, 21.6), (32.7, 21.6)])  # lines 30-35
sketch15.addConstraint(Sketcher.Constraint("Horizontal", 0))
sketch15.addConstraint(Sketcher.Constraint("Horizontal", 3))
sketch15.addConstraint(Sketcher.Constraint("Horizontal", 8))
sketch15.addConstraint(Sketcher.Constraint("Horizontal", 11))
sketch15.addConstraint(Sketcher.Constraint("Horizontal", 13))
sketch15.addConstraint(Sketcher.Constraint("Horizontal", 16))
sketch15.addConstraint(Sketcher.Constraint("Horizontal", 20))
sketch15.addConstraint(Sketcher.Constraint("Horizontal", 23))
sketch15.addConstraint(Sketcher.Constraint("Horizontal", 24))
sketch15.addConstraint(Sketcher.Constraint("Horizontal", 27))
sketch15.addConstraint(Sketcher.Constraint("Horizontal", 31))
sketch15.addConstraint(Sketcher.Constraint("Horizontal", 34))
sketch15.addConstraint(Sketcher.Constraint("Symmetric", 6, 2, 18, 2, -1, 1))
sketch15.addConstraint(Sketcher.Constraint("Symmetric", 7, 2, 19, 2, -1, 1))
sketch15.addConstraint(Sketcher.Constraint("Symmetric", 9, 2, 21, 2, -1, 1))
sketch15.addConstraint(Sketcher.Constraint("Symmetric", 10, 2, 22, 2, -1, 1))
sketch15.addConstraint(Sketcher.Constraint("Symmetric", 0, 2, 24, 2, -1, 1))
sketch15.addConstraint(Sketcher.Constraint("Symmetric", 1, 2, 25, 2, -1, 1))
sketch15.addConstraint(Sketcher.Constraint("Symmetric", 2, 2, 26, 2, -1, 1))
sketch15.addConstraint(Sketcher.Constraint("Symmetric", 4, 2, 28, 2, -1, 1))
sketch15.addConstraint(Sketcher.Constraint("Symmetric", 12, 2, 30, 2, -1, 1))
sketch15.addConstraint(Sketcher.Constraint("Symmetric", 14, 2, 32, 2, -1, 1))
sketch15.addConstraint(Sketcher.Constraint("Symmetric", 15, 2, 33, 2, -1, 1))
sketch15.addConstraint(Sketcher.Constraint("Symmetric", 17, 2, 35, 2, -1, 1))
sketch15.addConstraint(Sketcher.Constraint("Symmetric", 6, 2, 9, 2, -2))
sketch15.addConstraint(Sketcher.Constraint("Symmetric", 15, 2, 24, 2, -2))
sketch15.addConstraint(Sketcher.Constraint("Symmetric", 14, 2, 25, 2, -2))
sketch15.addConstraint(Sketcher.Constraint("Symmetric", 13, 2, 26, 2, -2))
sketch15.addConstraint(Sketcher.Constraint("Symmetric", 17, 2, 28, 2, -2))
sketch15.addConstraint(Sketcher.Constraint("Parallel", 1, 4))
sketch15.addConstraint(Sketcher.Constraint("Parallel", 2, 5))
sketch15.addConstraint(Sketcher.Constraint("Parallel", 4, 6))
sketch15.addConstraint(Sketcher.Constraint("Parallel", 5, 7))
sketch15.addConstraint(Sketcher.Constraint("Parallel", 6, 9))
sketch15.addConstraint(Sketcher.Constraint("Parallel", 7, 10))
sketch15.addConstraint(Sketcher.Constraint("Parallel", 10, 12))
sketch15.addConstraint(Sketcher.Constraint("Parallel", 9, 14))
sketch15.addConstraint(Sketcher.Constraint("Parallel", 14, 17))
sketch15.addConstraint(Sketcher.Constraint("Parallel", 17, 18))
sketch15.addConstraint(Sketcher.Constraint("Parallel", 18, 21))
sketch15.addConstraint(Sketcher.Constraint("Parallel", 25, 28))
sketch15.addConstraint(Sketcher.Constraint("Parallel", 26, 29))
sketch15.addConstraint(Sketcher.Constraint("Parallel", 28, 32))
sketch15.addConstraint(Sketcher.Constraint("Parallel", 32, 35))
sketch15.addConstraint(Sketcher.Constraint("Horizontal", 1, 2, 4, 2))
sketch15.addConstraint(Sketcher.Constraint("Vertical", 0, 2, 2, 2))
sketch15.addConstraint(Sketcher.Constraint("Vertical", 8, 2, 10, 2))
sketch15.addConstraint(Sketcher.Constraint("Equal", 3, 8))
sketch15.addConstraint(Sketcher.Constraint("Equal", 5, 6))
sketch15.addConstraint(Sketcher.Constraint("Angle", 1, Q("-60 deg")))
sketch15.addConstraint(Sketcher.Constraint("DistanceY", -1, 1, 6, 2, 35.0))
sketch15.addConstraint(Sketcher.Constraint("DistanceY", 12, 2, 5, 2, 35.0))
sketch15.addConstraint(Sketcher.Constraint("DistanceY", 2, 2, 0, 2, 8.3))
sketch15.addConstraint(Sketcher.Constraint("DistanceX", 5, 2, 6, 2, 37.4989))
sketch15.addConstraint(Sketcher.Constraint("DistanceX", 0, 1, 0, 2, 4.792007))
pocket10 = body2.newObject("PartDesign::Pocket", "Pocket009")
pocket10.Profile = sketch15
pocket10.setExpression("Length", "Params.pocket10_length")
pocket10.Reversed = True

doc.recompute()
